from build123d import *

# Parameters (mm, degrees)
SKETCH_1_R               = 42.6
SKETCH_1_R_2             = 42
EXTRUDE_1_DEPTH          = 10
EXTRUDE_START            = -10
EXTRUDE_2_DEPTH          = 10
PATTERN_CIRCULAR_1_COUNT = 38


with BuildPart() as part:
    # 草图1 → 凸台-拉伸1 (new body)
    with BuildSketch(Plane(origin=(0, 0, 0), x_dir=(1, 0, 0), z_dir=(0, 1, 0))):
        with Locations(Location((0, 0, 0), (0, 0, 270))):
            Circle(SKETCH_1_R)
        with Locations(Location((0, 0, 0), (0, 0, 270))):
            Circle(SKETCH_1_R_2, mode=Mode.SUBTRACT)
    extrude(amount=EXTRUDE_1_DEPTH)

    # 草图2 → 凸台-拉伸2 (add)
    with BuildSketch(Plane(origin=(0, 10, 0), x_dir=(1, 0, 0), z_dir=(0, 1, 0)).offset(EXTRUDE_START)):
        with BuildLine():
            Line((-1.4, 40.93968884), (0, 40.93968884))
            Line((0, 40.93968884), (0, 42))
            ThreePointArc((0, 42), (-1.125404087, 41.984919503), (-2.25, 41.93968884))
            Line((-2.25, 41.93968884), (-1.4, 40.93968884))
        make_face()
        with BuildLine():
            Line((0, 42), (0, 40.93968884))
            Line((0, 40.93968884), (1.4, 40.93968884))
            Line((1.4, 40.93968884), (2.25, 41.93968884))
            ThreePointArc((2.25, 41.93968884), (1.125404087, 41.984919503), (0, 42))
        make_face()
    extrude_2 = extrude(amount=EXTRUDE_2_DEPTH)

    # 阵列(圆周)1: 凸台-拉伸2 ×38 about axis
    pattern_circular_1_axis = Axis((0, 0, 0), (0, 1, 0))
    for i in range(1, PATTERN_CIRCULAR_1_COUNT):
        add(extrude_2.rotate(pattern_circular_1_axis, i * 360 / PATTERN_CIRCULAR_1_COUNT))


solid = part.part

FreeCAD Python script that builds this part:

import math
import FreeCAD as App
import Part
import Sketcher
from FreeCAD import Vector
Q = App.Units.Quantity

doc = App.newDocument("Part")
body = doc.addObject("PartDesign::Body", "Body")

sketch1 = doc.addObject("Sketcher::SketchObject", "Sketch")
body.addObject(sketch1)
sketch1.AttachmentSupport = (doc.XZ_Plane, [""])
sketch1.MapMode = "FlatFace"
sketch1.addGeometry(Part.Circle(Vector(0, 0, 0), Vector(0, 0, 1), 43), False)
sketch1.addGeometry(Part.Circle(Vector(0, 0, 0), Vector(0, 0, 1), 42), False)
sketch1.addConstraint(Sketcher.Constraint("Coincident", 0, 3, -1, 1))
sketch1.addConstraint(Sketcher.Constraint("Coincident", 1, 3, -1, 1))
sketch1.addConstraint(Sketcher.Constraint("Diameter", 1, Q("84 mm")))
sketch1.addConstraint(Sketcher.Constraint("Diameter", 0, Q("85.2 mm")))
pad1 = doc.addObject("PartDesign::Pad", "Pad")
body.addObject(pad1)
pad1.Profile = sketch1
pad1.Length = 10
pad1.Reversed = True

sketch2 = doc.addObject("Sketcher::SketchObject", "Sketch001")
body.addObject(sketch2)
sketch2.AttachmentSupport = (doc.XZ_Plane, [""])
sketch2.MapMode = "FlatFace"
sketch2.addGeometry(Part.LineSegment(Vector(-1.4, -40.9, 0), Vector(1.4, -40.9, 0)), False)
sketch2.addGeometry(Part.LineSegment(Vector(1.4, -40.9, 0), Vector(2.2, -41.9, 0)), False)
sketch2.addGeometry(Part.ArcOfCircle(Part.Circle(Vector(0, 0, 0), Vector(0, 0, 1), 42), math.radians(-90), math.radians(-86.93)), False)
sketch2.addGeometry(Part.ArcOfCircle(Part.Circle(Vector(0, 0, 0), Vector(0, 0, 1), 42), math.radians(-93.07), math.radians(-90)), False)
sketch2.addGeometry(Part.LineSegment(Vector(-2.2, -41.9, 0), Vector(-1.4, -40.9, 0)), False)
sketch2.addConstraint(Sketcher.Constraint("Coincident", 0, 2, 1, 1))
sketch2.addConstraint(Sketcher.Constraint("Coincident", 1, 2, 2, 2))
sketch2.addConstraint(Sketcher.Constraint("Tangent", 2, 1, 3, 2))
sketch2.addConstraint(Sketcher.Constraint("Coincident", 3, 1, 4, 1))
sketch2.addConstraint(Sketcher.Constraint("Coincident", 4, 2, 0, 1))
sketch2.addConstraint(Sketcher.Constraint("Horizontal", 0))
sketch2.addConstraint(Sketcher.Constraint("Coincident", 2, 3, -1, 1))
sketch2.addConstraint(Sketcher.Constraint("Equal", 2, 3))
sketch2.addConstraint(Sketcher.Constraint("PointOnObject", 2, 1, -2))
sketch2.addConstraint(Sketcher.Constraint("Horizontal", 1, 2, 3, 1))
sketch2.addConstraint(Sketcher.Constraint("Equal", 1, 4))
sketch2.addConstraint(Sketcher.Constraint("Radius", 2, Q("41.999999 mm")))
sketch2.addConstraint(Sketcher.Constraint("DistanceX", 0, 1, 0, 2, Q("2.8 mm")))
sketch2.addConstraint(Sketcher.Constraint("DistanceY", 1, 2, 0, 2, Q("1 mm")))
sketch2.addConstraint(Sketcher.Constraint("DistanceX", 3, 1, 1, 2, Q("4.5 mm")))
pad2 = doc.addObject("PartDesign::Pad", "Pad001")
body.addObject(pad2)
pad2.Profile = sketch2
pad2.Length = 10
pad2.Reversed = True
doc.recompute()

polarpattern = doc.addObject("PartDesign::PolarPattern", "PolarPattern")
body.addObject(polarpattern)
polarpattern.Originals = [pad2]
polarpattern.Axis = (doc.Y_Axis, [""])
polarpattern.Angle = 360
polarpattern.Occurrences = 38
body.Tip = polarpattern

doc.recompute()
